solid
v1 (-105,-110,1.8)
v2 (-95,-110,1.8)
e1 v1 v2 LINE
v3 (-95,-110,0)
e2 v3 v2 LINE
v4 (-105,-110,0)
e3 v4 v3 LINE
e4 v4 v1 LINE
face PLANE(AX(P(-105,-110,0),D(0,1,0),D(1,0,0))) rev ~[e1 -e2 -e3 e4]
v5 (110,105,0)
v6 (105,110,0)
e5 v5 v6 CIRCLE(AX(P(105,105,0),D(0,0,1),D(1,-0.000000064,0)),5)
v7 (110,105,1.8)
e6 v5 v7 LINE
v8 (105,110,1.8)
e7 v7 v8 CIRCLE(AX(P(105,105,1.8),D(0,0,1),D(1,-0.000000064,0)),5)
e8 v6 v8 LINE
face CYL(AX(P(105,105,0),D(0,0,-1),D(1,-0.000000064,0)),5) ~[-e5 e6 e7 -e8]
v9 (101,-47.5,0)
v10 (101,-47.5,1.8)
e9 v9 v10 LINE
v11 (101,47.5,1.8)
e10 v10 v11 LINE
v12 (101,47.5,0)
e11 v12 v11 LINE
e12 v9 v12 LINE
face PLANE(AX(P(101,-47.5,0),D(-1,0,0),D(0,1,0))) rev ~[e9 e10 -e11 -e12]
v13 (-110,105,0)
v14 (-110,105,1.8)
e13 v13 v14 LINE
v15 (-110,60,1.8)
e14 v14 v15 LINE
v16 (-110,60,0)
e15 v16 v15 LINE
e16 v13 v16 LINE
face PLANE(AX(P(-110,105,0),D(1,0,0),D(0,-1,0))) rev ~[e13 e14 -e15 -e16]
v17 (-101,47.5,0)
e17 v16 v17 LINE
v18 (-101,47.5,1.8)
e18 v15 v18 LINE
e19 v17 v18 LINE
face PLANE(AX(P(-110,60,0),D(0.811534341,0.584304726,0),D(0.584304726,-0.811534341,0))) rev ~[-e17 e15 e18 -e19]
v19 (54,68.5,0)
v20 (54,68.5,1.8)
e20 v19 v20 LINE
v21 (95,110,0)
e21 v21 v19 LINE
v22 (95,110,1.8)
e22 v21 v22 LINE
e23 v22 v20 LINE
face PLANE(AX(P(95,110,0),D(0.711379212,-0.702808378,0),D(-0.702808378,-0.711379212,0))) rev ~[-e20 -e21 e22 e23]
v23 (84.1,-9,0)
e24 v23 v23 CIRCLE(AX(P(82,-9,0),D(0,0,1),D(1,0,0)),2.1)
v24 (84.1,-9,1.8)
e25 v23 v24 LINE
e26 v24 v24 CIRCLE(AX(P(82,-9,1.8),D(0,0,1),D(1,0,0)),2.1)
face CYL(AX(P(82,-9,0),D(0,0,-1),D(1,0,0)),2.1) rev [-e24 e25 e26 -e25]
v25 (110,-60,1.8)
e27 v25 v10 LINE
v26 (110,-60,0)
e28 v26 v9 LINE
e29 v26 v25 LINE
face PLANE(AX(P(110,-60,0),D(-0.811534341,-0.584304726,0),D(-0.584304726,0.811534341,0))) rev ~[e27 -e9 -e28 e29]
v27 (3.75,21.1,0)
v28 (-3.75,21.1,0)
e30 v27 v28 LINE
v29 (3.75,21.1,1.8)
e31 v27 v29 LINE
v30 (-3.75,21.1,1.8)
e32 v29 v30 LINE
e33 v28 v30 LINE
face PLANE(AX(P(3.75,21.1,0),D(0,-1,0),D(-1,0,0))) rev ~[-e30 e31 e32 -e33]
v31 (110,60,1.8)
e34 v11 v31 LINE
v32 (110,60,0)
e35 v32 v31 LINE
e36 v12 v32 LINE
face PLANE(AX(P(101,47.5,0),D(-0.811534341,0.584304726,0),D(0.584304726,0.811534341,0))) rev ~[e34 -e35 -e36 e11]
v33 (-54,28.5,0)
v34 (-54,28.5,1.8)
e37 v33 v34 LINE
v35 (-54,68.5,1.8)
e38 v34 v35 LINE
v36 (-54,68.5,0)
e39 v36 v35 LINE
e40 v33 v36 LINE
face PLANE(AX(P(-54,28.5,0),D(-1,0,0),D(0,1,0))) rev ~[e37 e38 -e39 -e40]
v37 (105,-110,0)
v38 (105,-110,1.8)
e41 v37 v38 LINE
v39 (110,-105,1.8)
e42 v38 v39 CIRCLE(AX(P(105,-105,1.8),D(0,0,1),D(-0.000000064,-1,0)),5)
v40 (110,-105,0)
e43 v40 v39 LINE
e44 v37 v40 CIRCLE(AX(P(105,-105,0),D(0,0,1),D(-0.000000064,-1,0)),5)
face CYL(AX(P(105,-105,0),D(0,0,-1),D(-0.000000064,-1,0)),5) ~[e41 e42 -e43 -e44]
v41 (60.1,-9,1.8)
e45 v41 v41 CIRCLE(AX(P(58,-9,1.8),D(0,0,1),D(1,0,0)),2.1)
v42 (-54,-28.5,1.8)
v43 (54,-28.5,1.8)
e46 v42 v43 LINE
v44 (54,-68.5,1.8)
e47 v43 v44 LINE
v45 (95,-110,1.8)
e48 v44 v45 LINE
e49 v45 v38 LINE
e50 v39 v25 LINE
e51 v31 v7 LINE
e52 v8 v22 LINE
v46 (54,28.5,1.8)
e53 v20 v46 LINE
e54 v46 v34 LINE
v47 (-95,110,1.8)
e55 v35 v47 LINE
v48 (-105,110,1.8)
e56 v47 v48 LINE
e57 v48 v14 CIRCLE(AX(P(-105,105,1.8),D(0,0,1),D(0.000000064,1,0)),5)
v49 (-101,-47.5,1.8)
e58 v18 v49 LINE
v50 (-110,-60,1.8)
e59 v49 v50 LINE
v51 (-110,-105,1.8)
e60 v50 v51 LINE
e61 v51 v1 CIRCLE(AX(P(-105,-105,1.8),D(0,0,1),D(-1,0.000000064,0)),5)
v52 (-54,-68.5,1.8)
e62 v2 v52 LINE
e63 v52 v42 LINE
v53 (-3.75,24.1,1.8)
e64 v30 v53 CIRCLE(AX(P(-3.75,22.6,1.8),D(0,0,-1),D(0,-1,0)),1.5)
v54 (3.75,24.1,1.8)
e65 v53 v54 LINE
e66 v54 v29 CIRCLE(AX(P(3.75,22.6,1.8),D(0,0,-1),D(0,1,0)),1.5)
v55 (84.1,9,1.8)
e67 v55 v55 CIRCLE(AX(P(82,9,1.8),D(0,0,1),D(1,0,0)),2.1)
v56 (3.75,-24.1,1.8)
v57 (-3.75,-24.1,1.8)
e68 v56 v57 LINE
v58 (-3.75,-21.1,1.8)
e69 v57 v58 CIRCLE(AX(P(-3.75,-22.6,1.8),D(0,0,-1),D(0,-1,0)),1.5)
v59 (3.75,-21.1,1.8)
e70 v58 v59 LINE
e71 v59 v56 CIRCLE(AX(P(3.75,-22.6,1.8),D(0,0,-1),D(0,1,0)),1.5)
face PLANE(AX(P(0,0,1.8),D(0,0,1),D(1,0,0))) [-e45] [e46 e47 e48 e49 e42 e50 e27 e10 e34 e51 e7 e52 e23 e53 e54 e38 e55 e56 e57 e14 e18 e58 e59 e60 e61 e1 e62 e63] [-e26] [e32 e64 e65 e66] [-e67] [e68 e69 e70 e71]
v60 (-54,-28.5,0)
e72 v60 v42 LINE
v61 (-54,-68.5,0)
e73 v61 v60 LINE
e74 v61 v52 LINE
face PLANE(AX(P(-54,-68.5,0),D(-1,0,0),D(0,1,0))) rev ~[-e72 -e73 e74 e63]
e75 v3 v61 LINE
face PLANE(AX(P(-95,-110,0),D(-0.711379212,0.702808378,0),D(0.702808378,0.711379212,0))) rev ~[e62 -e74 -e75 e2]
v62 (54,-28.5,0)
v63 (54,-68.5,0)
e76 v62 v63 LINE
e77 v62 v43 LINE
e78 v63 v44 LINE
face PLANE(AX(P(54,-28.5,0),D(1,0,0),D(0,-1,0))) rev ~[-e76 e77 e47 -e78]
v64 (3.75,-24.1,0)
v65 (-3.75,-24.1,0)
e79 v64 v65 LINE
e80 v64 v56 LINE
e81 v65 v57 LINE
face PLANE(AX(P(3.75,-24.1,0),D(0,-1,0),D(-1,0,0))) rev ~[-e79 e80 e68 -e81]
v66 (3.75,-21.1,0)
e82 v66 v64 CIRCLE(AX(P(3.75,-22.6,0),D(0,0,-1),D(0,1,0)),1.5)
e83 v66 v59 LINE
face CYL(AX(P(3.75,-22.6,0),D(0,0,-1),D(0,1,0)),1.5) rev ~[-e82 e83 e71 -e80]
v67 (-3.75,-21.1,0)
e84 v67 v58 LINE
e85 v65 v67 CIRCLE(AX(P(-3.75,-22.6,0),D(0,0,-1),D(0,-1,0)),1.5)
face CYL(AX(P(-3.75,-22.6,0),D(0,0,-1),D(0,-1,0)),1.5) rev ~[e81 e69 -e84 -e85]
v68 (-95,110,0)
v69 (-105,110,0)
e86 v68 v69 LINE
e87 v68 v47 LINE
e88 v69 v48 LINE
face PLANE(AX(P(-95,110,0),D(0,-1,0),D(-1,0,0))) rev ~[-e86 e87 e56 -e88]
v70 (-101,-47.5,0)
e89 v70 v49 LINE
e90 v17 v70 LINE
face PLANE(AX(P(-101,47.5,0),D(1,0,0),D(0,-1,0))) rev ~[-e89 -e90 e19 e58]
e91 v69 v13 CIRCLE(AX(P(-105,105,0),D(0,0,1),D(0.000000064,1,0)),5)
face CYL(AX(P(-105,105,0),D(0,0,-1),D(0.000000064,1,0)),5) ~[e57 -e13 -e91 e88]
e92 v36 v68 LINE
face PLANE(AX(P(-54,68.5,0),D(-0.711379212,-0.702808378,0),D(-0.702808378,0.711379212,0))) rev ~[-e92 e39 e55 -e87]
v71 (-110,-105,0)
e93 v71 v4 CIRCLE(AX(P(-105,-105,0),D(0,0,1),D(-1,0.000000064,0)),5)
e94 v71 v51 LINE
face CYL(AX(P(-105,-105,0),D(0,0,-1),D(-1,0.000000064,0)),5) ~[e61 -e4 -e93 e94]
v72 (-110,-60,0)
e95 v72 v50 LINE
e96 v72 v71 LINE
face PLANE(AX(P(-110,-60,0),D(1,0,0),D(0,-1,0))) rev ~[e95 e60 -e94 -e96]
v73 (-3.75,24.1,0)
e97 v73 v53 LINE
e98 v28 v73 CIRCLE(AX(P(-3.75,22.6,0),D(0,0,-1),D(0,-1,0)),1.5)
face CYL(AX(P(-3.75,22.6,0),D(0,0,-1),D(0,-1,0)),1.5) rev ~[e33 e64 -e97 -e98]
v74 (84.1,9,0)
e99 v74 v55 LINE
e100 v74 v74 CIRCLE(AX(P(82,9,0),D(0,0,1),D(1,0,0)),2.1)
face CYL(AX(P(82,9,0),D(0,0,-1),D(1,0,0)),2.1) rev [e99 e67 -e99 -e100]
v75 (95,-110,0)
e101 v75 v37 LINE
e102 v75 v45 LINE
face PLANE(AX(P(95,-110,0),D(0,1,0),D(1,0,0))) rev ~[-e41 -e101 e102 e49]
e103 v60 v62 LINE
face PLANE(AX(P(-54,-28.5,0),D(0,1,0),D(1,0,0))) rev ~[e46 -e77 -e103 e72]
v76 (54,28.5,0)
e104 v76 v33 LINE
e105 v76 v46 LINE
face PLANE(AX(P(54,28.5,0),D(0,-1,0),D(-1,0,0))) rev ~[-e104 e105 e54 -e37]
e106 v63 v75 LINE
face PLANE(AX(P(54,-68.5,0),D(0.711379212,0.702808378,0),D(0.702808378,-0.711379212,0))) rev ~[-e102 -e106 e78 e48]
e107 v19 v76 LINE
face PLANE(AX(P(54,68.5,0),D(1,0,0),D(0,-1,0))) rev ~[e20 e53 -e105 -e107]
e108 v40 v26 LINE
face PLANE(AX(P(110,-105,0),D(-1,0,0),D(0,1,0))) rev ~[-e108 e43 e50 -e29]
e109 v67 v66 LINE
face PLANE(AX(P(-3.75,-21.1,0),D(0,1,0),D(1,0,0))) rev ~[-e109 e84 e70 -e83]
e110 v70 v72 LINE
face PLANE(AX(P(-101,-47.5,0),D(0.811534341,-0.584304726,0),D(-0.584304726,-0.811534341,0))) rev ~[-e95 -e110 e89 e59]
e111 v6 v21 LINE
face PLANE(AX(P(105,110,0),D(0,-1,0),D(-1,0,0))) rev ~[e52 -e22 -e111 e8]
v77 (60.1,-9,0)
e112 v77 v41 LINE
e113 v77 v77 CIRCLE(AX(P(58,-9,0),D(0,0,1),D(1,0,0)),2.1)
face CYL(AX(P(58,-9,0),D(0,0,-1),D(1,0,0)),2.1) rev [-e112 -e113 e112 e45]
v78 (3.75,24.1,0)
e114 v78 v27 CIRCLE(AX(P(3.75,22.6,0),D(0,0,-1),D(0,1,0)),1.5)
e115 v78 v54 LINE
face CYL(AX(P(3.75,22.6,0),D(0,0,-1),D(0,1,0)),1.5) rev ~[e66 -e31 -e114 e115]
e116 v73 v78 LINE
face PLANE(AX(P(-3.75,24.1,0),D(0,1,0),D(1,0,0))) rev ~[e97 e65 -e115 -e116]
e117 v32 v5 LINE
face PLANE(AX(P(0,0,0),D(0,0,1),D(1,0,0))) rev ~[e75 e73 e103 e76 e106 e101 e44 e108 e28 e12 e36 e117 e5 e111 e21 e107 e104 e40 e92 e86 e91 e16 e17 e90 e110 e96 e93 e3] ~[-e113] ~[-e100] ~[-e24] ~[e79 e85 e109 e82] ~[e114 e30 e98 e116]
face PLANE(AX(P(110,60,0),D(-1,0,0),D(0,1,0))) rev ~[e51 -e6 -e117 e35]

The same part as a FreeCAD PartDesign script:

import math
import FreeCAD as App
import Part
import Sketcher

V = App.Vector
Q = App.Units.Quantity

doc = App.newDocument("Part")
params = doc.addObject("Spreadsheet::Sheet", "Params")
for row, (alias, value) in enumerate([
    ("sketch1_radius", "5 mm"),
    ("sketch1_diameter", "4.2 mm"),
    ("sketch1_radius2", "1.5 mm"),
    ("sketch1_width", "108 mm"),
    ("sketch1_width2", "10 mm"),
    ("pad1_length", "1.8 mm"),
], start=1):
    params.set(f"A{row}", alias)
    params.set(f"B{row}", "=" + value)
    params.setAlias(f"B{row}", alias)

body = doc.addObject("PartDesign::Body", "Body")

# Sketch on XY plane
sketch1 = doc.addObject("Sketcher::SketchObject", "Sketch")
body.addObject(sketch1)
sketch1.AttachmentSupport = (doc.XY_Plane, [""])
sketch1.MapMode = "FlatFace"
sketch1.addGeometry([
    Part.LineSegment(V(54, 68.5, 0), V(54, 28.5, 0)),  # 0
    Part.LineSegment(V(54, 28.5, 0), V(-54, 28.5, 0)),  # 1
    Part.LineSegment(V(-54, 28.5, 0), V(-54, 68.5, 0)),  # 2
    Part.LineSegment(V(-54, 68.5, 0), V(-95, 110, 0)),  # 3
    Part.LineSegment(V(-95, 110, 0), V(-105, 110, 0)),  # 4
    Part.ArcOfCircle(Part.Circle(V(-105, 105, 0), V(0, 0, 1), 5), math.radians(90), math.radians(180)),  # 5
    Part.LineSegment(V(-110, 105, 0), V(-110, 60, 0)),  # 6
    Part.LineSegment(V(-110, 60, 0), V(-101, 47.5, 0)),  # 7
    Part.LineSegment(V(-101, 47.5, 0), V(-101, -47.5, 0)),  # 8
    Part.LineSegment(V(-101, -47.5, 0), V(-110, -60, 0)),  # 9
    Part.LineSegment(V(-110, -60, 0), V(-110, -105, 0)),  # 10
    Part.ArcOfCircle(Part.Circle(V(-105, -105, 0), V(0, 0, 1), 5), math.radians(180), math.radians(270)),  # 11
    Part.LineSegment(V(-105, -110, 0), V(-95, -110, 0)),  # 12
    Part.LineSegment(V(-95, -110, 0), V(-54, -68.5, 0)),  # 13
    Part.LineSegment(V(-54, -68.5, 0), V(-54, -28.5, 0)),  # 14
    Part.LineSegment(V(-54, -28.5, 0), V(54, -28.5, 0)),  # 15
    Part.LineSegment(V(54, -28.5, 0), V(54, -68.5, 0)),  # 16
    Part.LineSegment(V(54, -68.5, 0), V(95, -110, 0)),  # 17
    Part.LineSegment(V(95, -110, 0), V(105, -110, 0)),  # 18
    Part.ArcOfCircle(Part.Circle(V(105, -105, 0), V(0, 0, 1), 5), math.radians(-90), math.radians(0)),  # 19
    Part.LineSegment(V(110, -105, 0), V(110, -60, 0)),  # 20
    Part.LineSegment(V(110, -60, 0), V(101, -47.5, 0)),  # 21
    Part.LineSegment(V(101, -47.5, 0), V(101, 47.5, 0)),  # 22
    Part.LineSegment(V(101, 47.5, 0), V(110, 60, 0)),  # 23
    Part.LineSegment(V(110, 60, 0), V(110, 105, 0)),  # 24
    Part.ArcOfCircle(Part.Circle(V(105, 105, 0), V(0, 0, 1), 5), math.radians(0), math.radians(90)),  # 25
    Part.LineSegment(V(105, 110, 0), V(95, 110, 0)),  # 26
    Part.LineSegment(V(95, 110, 0), V(54, 68.5, 0)),  # 27
    Part.ArcOfCircle(Part.Circle(V(-3.8, -22.6, 0), V(0, 0, 1), 1.5), math.radians(90), math.radians(270)),  # 28
    Part.LineSegment(V(-3.8, -21.1, 0), V(3.8, -21.1, 0)),  # 29
    Part.ArcOfCircle(Part.Circle(V(3.8, -22.6, 0), V(0, 0, 1), 1.5), math.radians(-90), math.radians(90)),  # 30
    Part.LineSegment(V(3.8, -24.1, 0), V(-3.8, -24.1, 0)),  # 31
    Part.Circle(V(58, -9, 0), V(0, 0, 1), 2.1),  # 32
    Part.Circle(V(82, -9, 0), V(0, 0, 1), 2.1),  # 33
    Part.ArcOfCircle(Part.Circle(V(-3.8, 22.6, 0), V(0, 0, 1), 1.5), math.radians(90), math.radians(270)),  # 34
    Part.LineSegment(V(-3.8, 24.1, 0), V(3.8, 24.1, 0)),  # 35
    Part.ArcOfCircle(Part.Circle(V(3.8, 22.6, 0), V(0, 0, 1), 1.5), math.radians(-90), math.radians(90)),  # 36
    Part.LineSegment(V(3.8, 21.1, 0), V(-3.8, 21.1, 0)),  # 37
    Part.Circle(V(82, 9, 0), V(0, 0, 1), 2.1),  # 38
], False)
sketch1.addConstraint([
    Sketcher.Constraint("Coincident", 0, 2, 1, 1),
    Sketcher.Constraint("Coincident", 1, 2, 2, 1),
    Sketcher.Constraint("Coincident", 2, 2, 3, 1),
    Sketcher.Constraint("Coincident", 3, 2, 4, 1),
    Sketcher.Constraint("Tangent", 4, 2, 5, 1),
    Sketcher.Constraint("Tangent", 5, 2, 6, 1),
    Sketcher.Constraint("Coincident", 6, 2, 7, 1),
    Sketcher.Constraint("Coincident", 7, 2, 8, 1),
    Sketcher.Constraint("Coincident", 8, 2, 9, 1),
    Sketcher.Constraint("Coincident", 9, 2, 10, 1),
    Sketcher.Constraint("Tangent", 10, 2, 11, 1),
    Sketcher.Constraint("Tangent", 11, 2, 12, 1),
    Sketcher.Constraint("Coincident", 12, 2, 13, 1),
    Sketcher.Constraint("Coincident", 13, 2, 14, 1),
    Sketcher.Constraint("Coincident", 14, 2, 15, 1),
    Sketcher.Constraint("Coincident", 15, 2, 16, 1),
    Sketcher.Constraint("Coincident", 16, 2, 17, 1),
    Sketcher.Constraint("Coincident", 17, 2, 18, 1),
    Sketcher.Constraint("Tangent", 18, 2, 19, 1),
    Sketcher.Constraint("Tangent", 19, 2, 20, 1),
    Sketcher.Constraint("Coincident", 20, 2, 21, 1),
    Sketcher.Constraint("Coincident", 21, 2, 22, 1),
    Sketcher.Constraint("Coincident", 22, 2, 23, 1),
    Sketcher.Constraint("Coincident", 23, 2, 24, 1),
    Sketcher.Constraint("Tangent", 24, 2, 25, 1),
    Sketcher.Constraint("Tangent", 25, 2, 26, 1),
    Sketcher.Constraint("Coincident", 26, 2, 27, 1),
    Sketcher.Constraint("Coincident", 27, 2, 0, 1),
    Sketcher.Constraint("Tangent", 28, 1, 29, 1),
    Sketcher.Constraint("Tangent", 29, 2, 30, 2),
    Sketcher.Constraint("Tangent", 30, 1, 31, 1),
    Sketcher.Constraint("Tangent", 31, 2, 28, 2),
    Sketcher.Constraint("Tangent", 34, 1, 35, 1),
    Sketcher.Constraint("Tangent", 35, 2, 36, 2),
    Sketcher.Constraint("Tangent", 36, 1, 37, 1),
    Sketcher.Constraint("Tangent", 37, 2, 34, 2),
    Sketcher.Constraint("Vertical", 0),
    Sketcher.Constraint("Horizontal", 1),
    Sketcher.Constraint("Vertical", 2),
    Sketcher.Constraint("Horizontal", 4),
    Sketcher.Constraint("Vertical", 6),
    Sketcher.Constraint("Vertical", 8),
    Sketcher.Constraint("Vertical", 10),
    Sketcher.Constraint("Horizontal", 12),
    Sketcher.Constraint("Vertical", 14),
    Sketcher.Constraint("Horizontal", 15),
    Sketcher.Constraint("Vertical", 16),
    Sketcher.Constraint("Horizontal", 18),
    Sketcher.Constraint("Vertical", 20),
    Sketcher.Constraint("Vertical", 22),
    Sketcher.Constraint("Vertical", 24),
    Sketcher.Constraint("Horizontal", 26),
    Sketcher.Constraint("Horizontal", 29),
    Sketcher.Constraint("Horizontal", 31),
    Sketcher.Constraint("Horizontal", 35),
    Sketcher.Constraint("Horizontal", 37),
    Sketcher.Constraint("Equal", 5, 11),
    Sketcher.Constraint("Equal", 11, 19),
    Sketcher.Constraint("Equal", 19, 25),
    Sketcher.Constraint("Equal", 32, 33),
    Sketcher.Constraint("Equal", 30, 34),
    Sketcher.Constraint("Equal", 33, 38),
    Sketcher.Constraint("Symmetric", 5, 3, 19, 3, -1, 1),
    Sketcher.Constraint("Symmetric", 11, 3, 25, 3, -1, 1),
    Sketcher.Constraint("Symmetric", 30, 3, 34, 3, -1, 1),
    Sketcher.Constraint("Symmetric", 0, 2, 14, 2, -1, 1),
    Sketcher.Constraint("Symmetric", 2, 2, 16, 2, -1, 1),
    Sketcher.Constraint("Symmetric", 7, 2, 21, 2, -1, 1),
    Sketcher.Constraint("Symmetric", 11, 3, 19, 3, -2),
    Sketcher.Constraint("Symmetric", 13, 2, 16, 2, -2),
    Sketcher.Constraint("Symmetric", 33, 3, 38, 3, -1),
    Sketcher.Constraint("Parallel", 3, 17),
    Sketcher.Constraint("Parallel", 7, 21),
    Sketcher.Constraint("Parallel", 9, 23),
    Sketcher.Constraint("Parallel", 13, 27),
    Sketcher.Constraint("Horizontal", 32, 3, 33, 3),
    Sketcher.Constraint("Horizontal", 9, 2, 20, 2),
    Sketcher.Constraint("Horizontal", 8, 2, 21, 2),
    Sketcher.Constraint("Horizontal", 7, 2, 22, 2),
    Sketcher.Constraint("Horizontal", 2, 2, 27, 2),
    Sketcher.Constraint("Vertical", 28, 3, 34, 3),
    Sketcher.Constraint("Vertical", 30, 3, 36, 3),
    Sketcher.Constraint("Vertical", 3, 2, 12, 2),
    Sketcher.Constraint("Radius", 5, Q("5 mm")),
    Sketcher.Constraint("Diameter", 32, Q("4.2 mm")),
    Sketcher.Constraint("Radius", 28, Q("1.5 mm")),
    Sketcher.Constraint("DistanceX", 1, 2, 1, 1, Q("108 mm")),
    Sketcher.Constraint("DistanceX", 4, 2, 4, 1, Q("10 mm")),
    Sketcher.Constraint("DistanceY", 0, 2, 0, 1, Q("40 mm")),
    Sketcher.Constraint("DistanceY", 6, 2, 6, 1, Q("45 mm")),
    Sketcher.Constraint("DistanceY", 8, 2, 8, 1, Q("95 mm")),
    Sketcher.Constraint("DistanceX", 29, 1, 29, 2, Q("7.5 mm")),
    Sketcher.Constraint("DistanceX", 5, 3, -1, 1, Q("105 mm")),
    Sketcher.Constraint("DistanceY", -1, 1, 5, 3, Q("105 mm")),
    Sketcher.Constraint("DistanceX", -1, 1, 32, 3, Q("58 mm")),
    Sketcher.Constraint("DistanceY", 32, 3, -1, 1, Q("9 mm")),
    Sketcher.Constraint("DistanceX", -1, 1, 33, 3, Q("82 mm")),
    Sketcher.Constraint("DistanceX", 7, 2, -1, 1, Q("101 mm")),
    Sketcher.Constraint("DistanceY", 1, 2, 7, 2, Q("19 mm")),
    Sketcher.Constraint("DistanceY", 28, 3, -1, 1, Q("22.6 mm")),
])
sketch1.setExpression("Constraints[83]", "Params.sketch1_radius")
sketch1.setExpression("Constraints[84]", "Params.sketch1_diameter")
sketch1.setExpression("Constraints[85]", "Params.sketch1_radius2")
sketch1.setExpression("Constraints[86]", "Params.sketch1_width")
sketch1.setExpression("Constraints[87]", "Params.sketch1_width2")
pad1 = doc.addObject("PartDesign::Pad", "Pad")
body.addObject(pad1)
pad1.Profile = sketch1
pad1.setExpression("Length", "Params.pad1_length")

doc.recompute()
